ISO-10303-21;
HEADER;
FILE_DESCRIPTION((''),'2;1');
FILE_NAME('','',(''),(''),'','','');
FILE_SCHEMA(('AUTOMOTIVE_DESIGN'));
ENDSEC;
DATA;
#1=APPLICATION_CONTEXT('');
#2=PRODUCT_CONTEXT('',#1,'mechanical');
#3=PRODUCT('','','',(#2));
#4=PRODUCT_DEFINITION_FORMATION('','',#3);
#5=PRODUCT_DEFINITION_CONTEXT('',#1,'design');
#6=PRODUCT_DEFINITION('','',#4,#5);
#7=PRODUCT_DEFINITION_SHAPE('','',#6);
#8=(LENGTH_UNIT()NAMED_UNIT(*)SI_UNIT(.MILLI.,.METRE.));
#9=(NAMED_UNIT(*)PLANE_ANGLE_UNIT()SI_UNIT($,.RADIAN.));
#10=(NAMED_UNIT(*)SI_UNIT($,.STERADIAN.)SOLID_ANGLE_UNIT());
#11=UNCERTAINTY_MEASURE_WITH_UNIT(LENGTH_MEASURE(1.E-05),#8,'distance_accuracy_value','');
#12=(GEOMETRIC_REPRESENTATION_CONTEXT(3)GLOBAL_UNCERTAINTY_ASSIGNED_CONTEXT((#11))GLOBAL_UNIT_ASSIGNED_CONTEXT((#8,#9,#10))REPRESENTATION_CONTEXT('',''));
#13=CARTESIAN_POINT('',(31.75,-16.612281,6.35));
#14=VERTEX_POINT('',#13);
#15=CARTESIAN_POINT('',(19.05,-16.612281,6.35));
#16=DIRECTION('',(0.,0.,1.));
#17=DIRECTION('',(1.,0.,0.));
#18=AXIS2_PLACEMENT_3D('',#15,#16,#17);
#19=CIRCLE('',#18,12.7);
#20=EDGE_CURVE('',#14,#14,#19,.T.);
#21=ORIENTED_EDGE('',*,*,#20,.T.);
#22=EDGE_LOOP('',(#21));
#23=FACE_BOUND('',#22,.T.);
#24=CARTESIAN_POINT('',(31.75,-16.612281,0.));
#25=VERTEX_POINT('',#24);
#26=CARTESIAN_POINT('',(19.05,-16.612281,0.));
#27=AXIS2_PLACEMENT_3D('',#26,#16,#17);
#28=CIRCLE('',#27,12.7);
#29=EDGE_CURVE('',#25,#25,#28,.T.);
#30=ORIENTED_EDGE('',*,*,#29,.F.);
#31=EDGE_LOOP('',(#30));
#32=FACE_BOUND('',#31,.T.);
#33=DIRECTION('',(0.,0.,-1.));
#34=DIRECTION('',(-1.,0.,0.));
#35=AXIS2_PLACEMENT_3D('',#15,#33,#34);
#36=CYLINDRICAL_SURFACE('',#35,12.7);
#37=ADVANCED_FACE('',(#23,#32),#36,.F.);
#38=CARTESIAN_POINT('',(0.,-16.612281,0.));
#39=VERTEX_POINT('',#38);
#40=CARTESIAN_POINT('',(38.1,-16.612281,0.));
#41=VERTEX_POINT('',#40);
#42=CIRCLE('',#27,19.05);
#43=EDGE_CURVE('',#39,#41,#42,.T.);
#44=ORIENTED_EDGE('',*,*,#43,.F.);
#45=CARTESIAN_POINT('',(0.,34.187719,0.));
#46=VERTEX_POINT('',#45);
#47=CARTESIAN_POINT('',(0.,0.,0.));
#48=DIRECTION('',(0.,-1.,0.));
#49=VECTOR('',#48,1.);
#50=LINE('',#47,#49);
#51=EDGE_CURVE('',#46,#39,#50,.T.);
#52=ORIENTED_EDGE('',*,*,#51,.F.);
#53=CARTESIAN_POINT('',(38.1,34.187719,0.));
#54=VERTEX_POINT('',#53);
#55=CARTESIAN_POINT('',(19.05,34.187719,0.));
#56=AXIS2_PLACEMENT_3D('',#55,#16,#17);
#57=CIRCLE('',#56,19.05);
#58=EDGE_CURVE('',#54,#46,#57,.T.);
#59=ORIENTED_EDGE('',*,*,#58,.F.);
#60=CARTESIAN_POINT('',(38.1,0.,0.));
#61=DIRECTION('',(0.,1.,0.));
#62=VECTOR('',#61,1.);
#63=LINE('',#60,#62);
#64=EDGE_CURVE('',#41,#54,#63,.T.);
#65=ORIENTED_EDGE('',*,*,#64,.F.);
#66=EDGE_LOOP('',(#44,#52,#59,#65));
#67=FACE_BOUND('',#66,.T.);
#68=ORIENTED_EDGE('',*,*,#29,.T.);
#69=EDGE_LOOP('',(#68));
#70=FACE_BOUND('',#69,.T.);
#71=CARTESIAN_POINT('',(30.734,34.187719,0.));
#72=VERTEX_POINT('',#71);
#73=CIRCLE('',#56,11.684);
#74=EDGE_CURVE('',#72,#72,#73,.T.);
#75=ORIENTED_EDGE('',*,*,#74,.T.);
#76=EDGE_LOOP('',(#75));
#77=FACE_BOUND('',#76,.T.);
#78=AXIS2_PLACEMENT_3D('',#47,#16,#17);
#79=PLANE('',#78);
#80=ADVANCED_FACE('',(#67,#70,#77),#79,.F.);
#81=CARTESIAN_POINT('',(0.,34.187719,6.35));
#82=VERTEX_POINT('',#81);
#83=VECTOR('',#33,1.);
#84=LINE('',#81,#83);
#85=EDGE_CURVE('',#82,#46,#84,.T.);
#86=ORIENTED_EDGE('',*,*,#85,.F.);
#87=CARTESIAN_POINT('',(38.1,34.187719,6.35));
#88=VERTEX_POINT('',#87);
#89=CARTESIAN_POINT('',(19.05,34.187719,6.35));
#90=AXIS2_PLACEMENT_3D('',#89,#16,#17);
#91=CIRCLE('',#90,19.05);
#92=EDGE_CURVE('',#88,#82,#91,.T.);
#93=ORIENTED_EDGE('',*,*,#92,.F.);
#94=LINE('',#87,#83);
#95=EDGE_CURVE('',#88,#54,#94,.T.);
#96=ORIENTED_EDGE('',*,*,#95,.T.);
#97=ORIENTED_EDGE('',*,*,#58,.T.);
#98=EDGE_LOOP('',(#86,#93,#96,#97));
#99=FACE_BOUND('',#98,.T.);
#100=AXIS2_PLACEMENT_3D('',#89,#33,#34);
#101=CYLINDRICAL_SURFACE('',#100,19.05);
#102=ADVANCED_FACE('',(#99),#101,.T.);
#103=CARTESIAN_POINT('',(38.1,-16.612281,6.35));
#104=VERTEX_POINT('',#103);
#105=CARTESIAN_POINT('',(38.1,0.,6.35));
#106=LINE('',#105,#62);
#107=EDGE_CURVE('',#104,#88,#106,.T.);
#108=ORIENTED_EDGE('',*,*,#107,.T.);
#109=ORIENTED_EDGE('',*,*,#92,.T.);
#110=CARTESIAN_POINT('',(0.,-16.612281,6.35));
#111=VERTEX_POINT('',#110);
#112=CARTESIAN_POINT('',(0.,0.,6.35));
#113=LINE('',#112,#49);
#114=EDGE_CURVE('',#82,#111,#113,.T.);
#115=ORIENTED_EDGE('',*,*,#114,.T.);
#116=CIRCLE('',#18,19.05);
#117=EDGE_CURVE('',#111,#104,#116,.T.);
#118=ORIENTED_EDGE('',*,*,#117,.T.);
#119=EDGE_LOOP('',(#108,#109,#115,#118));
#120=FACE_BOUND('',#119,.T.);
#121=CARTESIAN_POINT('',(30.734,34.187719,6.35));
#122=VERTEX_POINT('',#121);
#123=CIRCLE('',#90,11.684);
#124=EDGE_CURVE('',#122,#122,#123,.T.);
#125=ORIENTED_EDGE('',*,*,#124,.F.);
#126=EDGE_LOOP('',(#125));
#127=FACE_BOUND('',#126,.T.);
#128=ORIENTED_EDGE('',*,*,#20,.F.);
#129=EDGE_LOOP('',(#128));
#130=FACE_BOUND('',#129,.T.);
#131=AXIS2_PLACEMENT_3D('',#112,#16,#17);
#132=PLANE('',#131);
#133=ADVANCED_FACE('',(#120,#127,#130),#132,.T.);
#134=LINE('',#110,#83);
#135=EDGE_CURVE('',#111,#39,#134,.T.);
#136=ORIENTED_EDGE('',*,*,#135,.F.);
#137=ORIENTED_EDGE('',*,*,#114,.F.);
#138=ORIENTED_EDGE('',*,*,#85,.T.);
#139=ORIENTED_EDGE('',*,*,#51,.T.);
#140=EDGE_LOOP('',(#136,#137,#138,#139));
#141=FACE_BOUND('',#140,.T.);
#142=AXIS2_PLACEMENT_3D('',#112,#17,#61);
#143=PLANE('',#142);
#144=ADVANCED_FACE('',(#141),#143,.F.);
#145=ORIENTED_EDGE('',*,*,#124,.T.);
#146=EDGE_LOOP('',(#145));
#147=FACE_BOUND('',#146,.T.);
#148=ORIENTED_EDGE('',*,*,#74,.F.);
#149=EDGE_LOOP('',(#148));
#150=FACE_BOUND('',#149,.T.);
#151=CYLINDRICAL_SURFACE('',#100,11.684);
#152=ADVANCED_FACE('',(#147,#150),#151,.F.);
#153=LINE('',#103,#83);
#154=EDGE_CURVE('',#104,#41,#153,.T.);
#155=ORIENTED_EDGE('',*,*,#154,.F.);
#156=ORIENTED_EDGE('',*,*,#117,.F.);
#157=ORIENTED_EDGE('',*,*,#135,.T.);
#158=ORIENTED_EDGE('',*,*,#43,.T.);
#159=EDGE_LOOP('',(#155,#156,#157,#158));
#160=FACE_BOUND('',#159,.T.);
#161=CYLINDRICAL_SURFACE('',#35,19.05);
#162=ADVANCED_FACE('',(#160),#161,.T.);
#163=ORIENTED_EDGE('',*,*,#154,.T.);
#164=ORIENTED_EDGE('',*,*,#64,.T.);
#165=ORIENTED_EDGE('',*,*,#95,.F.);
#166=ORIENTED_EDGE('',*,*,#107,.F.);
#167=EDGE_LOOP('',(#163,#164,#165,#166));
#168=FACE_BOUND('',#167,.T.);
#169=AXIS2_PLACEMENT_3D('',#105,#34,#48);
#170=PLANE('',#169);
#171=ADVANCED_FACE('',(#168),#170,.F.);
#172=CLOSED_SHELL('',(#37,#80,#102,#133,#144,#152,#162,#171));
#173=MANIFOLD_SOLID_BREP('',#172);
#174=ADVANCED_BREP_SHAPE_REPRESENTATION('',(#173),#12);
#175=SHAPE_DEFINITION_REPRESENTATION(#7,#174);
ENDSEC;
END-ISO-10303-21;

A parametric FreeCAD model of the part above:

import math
import FreeCAD as App
import Part
import Sketcher
from FreeCAD import Vector
Q = App.Units.Quantity

doc = App.newDocument("Part")
body = doc.addObject("PartDesign::Body", "Body")

# Sketch on XY plane
sketch1 = doc.addObject("Sketcher::SketchObject", "Sketch")
body.addObject(sketch1)
sketch1.AttachmentSupport = (doc.XY_Plane, [""])
sketch1.MapMode = "FlatFace"
sketch1.addGeometry([
    Part.LineSegment(Vector(0, 34, 0), Vector(0, -17, 0)),  # 0
    Part.ArcOfCircle(Part.Circle(Vector(19, -17, 0), Vector(0, 0, 1), 19), math.radians(180), math.radians(360)),  # 1
    Part.LineSegment(Vector(38, -17, 0), Vector(38, 34, 0)),  # 2
    Part.ArcOfCircle(Part.Circle(Vector(19, 34, 0), Vector(0, 0, 1), 19), math.radians(0), math.radians(180)),  # 3
    Part.Circle(Vector(19, -17, 0), Vector(0, 0, 1), 13),  # 4
    Part.Circle(Vector(19, 34, 0), Vector(0, 0, 1), 12),  # 5
], False)
sketch1.addConstraint([
    Sketcher.Constraint("Tangent", 0, 2, 1, 1),
    Sketcher.Constraint("Tangent", 1, 2, 2, 1),
    Sketcher.Constraint("Tangent", 2, 2, 3, 1),
    Sketcher.Constraint("Tangent", 3, 2, 0, 1),
    Sketcher.Constraint("Vertical", 0),
    Sketcher.Constraint("Vertical", 2),
    Sketcher.Constraint("Coincident", 4, 3, 1, 3),
    Sketcher.Constraint("Coincident", 5, 3, 3, 3),
    Sketcher.Constraint("PointOnObject", 0, 2, -2),
    Sketcher.Constraint("Diameter", 4, Q("1 in")),
    Sketcher.Constraint("Diameter", 5, Q("0.92 in")),
    Sketcher.Constraint("DistanceY", 0, 2, 0, 1, Q("2 in")),
    Sketcher.Constraint("Radius", 1, Q("0.75 in")),
    Sketcher.Constraint("DistanceY", 1, 3, -1, 1, 16.612281),
])
pad1 = doc.addObject("PartDesign::Pad", "Pad")
body.addObject(pad1)
pad1.Profile = sketch1
pad1.Length = Q("0.25 in")

doc.recompute()
